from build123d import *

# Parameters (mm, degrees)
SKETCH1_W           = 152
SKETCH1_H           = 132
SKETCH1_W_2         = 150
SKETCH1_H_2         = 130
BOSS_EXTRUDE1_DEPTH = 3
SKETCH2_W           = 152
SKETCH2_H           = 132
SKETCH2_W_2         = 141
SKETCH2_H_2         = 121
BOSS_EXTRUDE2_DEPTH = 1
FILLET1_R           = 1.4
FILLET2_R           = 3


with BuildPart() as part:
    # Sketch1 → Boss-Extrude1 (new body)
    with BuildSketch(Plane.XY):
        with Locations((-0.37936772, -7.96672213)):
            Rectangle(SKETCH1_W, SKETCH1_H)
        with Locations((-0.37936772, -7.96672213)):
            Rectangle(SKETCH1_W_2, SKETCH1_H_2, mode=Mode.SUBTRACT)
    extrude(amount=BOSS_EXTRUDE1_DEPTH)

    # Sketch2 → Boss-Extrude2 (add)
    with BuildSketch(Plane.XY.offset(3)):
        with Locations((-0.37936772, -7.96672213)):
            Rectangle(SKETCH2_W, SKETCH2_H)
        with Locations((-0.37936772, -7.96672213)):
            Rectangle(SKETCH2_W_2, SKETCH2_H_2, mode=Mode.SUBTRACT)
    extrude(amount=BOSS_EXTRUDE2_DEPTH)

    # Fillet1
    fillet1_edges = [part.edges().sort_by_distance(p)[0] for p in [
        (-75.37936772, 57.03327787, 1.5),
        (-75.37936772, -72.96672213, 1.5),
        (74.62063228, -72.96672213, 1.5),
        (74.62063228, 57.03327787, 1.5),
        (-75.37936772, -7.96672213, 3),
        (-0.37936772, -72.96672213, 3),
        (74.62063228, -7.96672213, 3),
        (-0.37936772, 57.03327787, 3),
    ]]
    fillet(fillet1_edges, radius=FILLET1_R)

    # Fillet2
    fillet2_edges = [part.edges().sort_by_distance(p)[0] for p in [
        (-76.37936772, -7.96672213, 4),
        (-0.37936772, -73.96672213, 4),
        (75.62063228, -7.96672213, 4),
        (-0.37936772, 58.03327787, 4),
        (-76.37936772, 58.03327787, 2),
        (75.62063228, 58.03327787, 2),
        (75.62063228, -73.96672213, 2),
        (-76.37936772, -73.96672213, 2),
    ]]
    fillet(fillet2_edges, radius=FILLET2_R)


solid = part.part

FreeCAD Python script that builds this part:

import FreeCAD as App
import Part
import Sketcher

V = App.Vector


def edges_at(feature, points):
    """Names of the edges that pass closest to the given points."""
    edges = feature.Shape.Edges
    near = lambda p: min(range(len(edges)), key=lambda i: edges[i].distToShape(Part.Vertex(*p))[0])
    return sorted({f"Edge{near(p) + 1}" for p in points})


def add_polygon(sketch, points):
    """Adds a closed chain of lines whose ends are joined by coincident constraints."""
    first, n = sketch.GeometryCount, len(points)
    for a, b in zip(points, points[1:] + points[:1]):
        sketch.addGeometry(Part.LineSegment(App.Vector(*a, 0), App.Vector(*b, 0)), False)
    for i in range(n):
        sketch.addConstraint(Sketcher.Constraint("Coincident", first + i, 2, first + (i + 1) % n, 1))

doc = App.newDocument("Part")
params = doc.addObject("Spreadsheet::Sheet", "Params")
for row, (alias, value) in enumerate([
    ("sketch1_width", "152 mm"),
    ("sketch1_width2", "150 mm"),
    ("sketch1_height", "132 mm"),
    ("sketch1_height2", "130 mm"),
    ("pad1_length", "3 mm"),
    ("sketch2_width", "152 mm"),
    ("sketch2_width2", "141 mm"),
    ("sketch2_height", "132 mm"),
    ("sketch2_height2", "121 mm"),
    ("pad2_length", "1 mm"),
    ("fillet_radius", "1.4 mm"),
    ("fillet2_radius", "3 mm"),
], start=1):
    params.set(f"A{row}", alias)
    params.set(f"B{row}", "=" + value)
    params.setAlias(f"B{row}", alias)

body = doc.addObject("PartDesign::Body", "Body")

# Sketch on XY plane
sketch1 = doc.addObject("Sketcher::SketchObject", "Sketch")
body.addObject(sketch1)
sketch1.AttachmentSupport = (doc.XY_Plane, [""])
sketch1.MapMode = "FlatFace"
add_polygon(sketch1, [(-76, 58), (-76, -74), (76, -74), (76, 58)])  # lines 0-3
add_polygon(sketch1, [(75, -73), (-75, -73), (-75, 57), (75, 57)])  # lines 4-7
sketch1.addConstraint(Sketcher.Constraint("Vertical", 0))
sketch1.addConstraint(Sketcher.Constraint("Horizontal", 1))
sketch1.addConstraint(Sketcher.Constraint("Vertical", 2))
sketch1.addConstraint(Sketcher.Constraint("Horizontal", 3))
sketch1.addConstraint(Sketcher.Constraint("Horizontal", 4))
sketch1.addConstraint(Sketcher.Constraint("Vertical", 5))
sketch1.addConstraint(Sketcher.Constraint("Horizontal", 6))
sketch1.addConstraint(Sketcher.Constraint("Vertical", 7))
sketch1.addConstraint(Sketcher.Constraint("DistanceX", 1, 1, 1, 2, 152.0))
sketch1.addConstraint(Sketcher.Constraint("DistanceX", 4, 2, 4, 1, 150.0))
sketch1.addConstraint(Sketcher.Constraint("DistanceY", 0, 2, 0, 1, 132.0))
sketch1.addConstraint(Sketcher.Constraint("DistanceY", 5, 1, 5, 2, 130.0))
sketch1.addConstraint(Sketcher.Constraint("DistanceX", 0, 2, 4, 2, 1.0))
sketch1.addConstraint(Sketcher.Constraint("DistanceY", 0, 2, 4, 2, 1.0))
sketch1.addConstraint(Sketcher.Constraint("DistanceX", 0, 2, -1, 1, 76.379368))
sketch1.addConstraint(Sketcher.Constraint("DistanceY", 0, 2, -1, 1, 73.966722))
sketch1.setExpression("Constraints[16]", "Params.sketch1_width")
sketch1.setExpression("Constraints[17]", "Params.sketch1_width2")
sketch1.setExpression("Constraints[18]", "Params.sketch1_height")
sketch1.setExpression("Constraints[19]", "Params.sketch1_height2")
pad1 = doc.addObject("PartDesign::Pad", "Pad")
body.addObject(pad1)
pad1.Profile = sketch1
pad1.setExpression("Length", "Params.pad1_length")

# Sketch on XY plane
sketch2 = doc.addObject("Sketcher::SketchObject", "Sketch001")
body.addObject(sketch2)
sketch2.AttachmentSupport = (doc.XY_Plane, [""])
sketch2.MapMode = "FlatFace"
sketch2.AttachmentOffset = App.Placement(V(0, 0, 3), App.Rotation())
add_polygon(sketch2, [(-76, 58), (-76, -74), (76, -74), (76, 58)])  # lines 0-3
add_polygon(sketch2, [(70, -68), (-71, -68), (-71, 53), (70, 53)])  # lines 4-7
sketch2.addConstraint(Sketcher.Constraint("Vertical", 0))
sketch2.addConstraint(Sketcher.Constraint("Horizontal", 1))
sketch2.addConstraint(Sketcher.Constraint("Vertical", 2))
sketch2.addConstraint(Sketcher.Constraint("Horizontal", 3))
sketch2.addConstraint(Sketcher.Constraint("Horizontal", 4))
sketch2.addConstraint(Sketcher.Constraint("Vertical", 5))
sketch2.addConstraint(Sketcher.Constraint("Horizontal", 6))
sketch2.addConstraint(Sketcher.Constraint("Vertical", 7))
sketch2.addConstraint(Sketcher.Constraint("DistanceX", 1, 1, 1, 2, 152.0))
sketch2.addConstraint(Sketcher.Constraint("DistanceX", 4, 2, 4, 1, 141.0))
sketch2.addConstraint(Sketcher.Constraint("DistanceY", 0, 2, 0, 1, 132.0))
sketch2.addConstraint(Sketcher.Constraint("DistanceY", 5, 1, 5, 2, 121.0))
sketch2.addConstraint(Sketcher.Constraint("DistanceX", 0, 2, 4, 2, 5.5))
sketch2.addConstraint(Sketcher.Constraint("DistanceY", 0, 2, 4, 2, 5.5))
sketch2.addConstraint(Sketcher.Constraint("DistanceX", 0, 2, -1, 1, 76.379368))
sketch2.addConstraint(Sketcher.Constraint("DistanceY", 0, 2, -1, 1, 73.966722))
sketch2.setExpression("Constraints[16]", "Params.sketch2_width")
sketch2.setExpression("Constraints[17]", "Params.sketch2_width2")
sketch2.setExpression("Constraints[18]", "Params.sketch2_height")
sketch2.setExpression("Constraints[19]", "Params.sketch2_height2")
pad2 = doc.addObject("PartDesign::Pad", "Pad001")
body.addObject(pad2)
pad2.Profile = sketch2
pad2.setExpression("Length", "Params.pad2_length")
doc.recompute()

fillet = doc.addObject("PartDesign::Fillet", "Fillet")
body.addObject(fillet)
fillet.Base = (pad2, edges_at(pad2, [
    (-75.379, 57.033, 1.5),
    (-75.379, -72.967, 1.5),
    (74.621, -72.967, 1.5),
    (74.621, 57.033, 1.5),
    (-75.379, -7.967, 3),
    (-0.379, -72.967, 3),
    (74.621, -7.967, 3),
    (-0.379, 57.033, 3),
]))
fillet.setExpression("Radius", "Params.fillet_radius")
doc.recompute()

fillet2 = doc.addObject("PartDesign::Fillet", "Fillet001")
body.addObject(fillet2)
fillet2.Base = (fillet, edges_at(fillet, [
    (-76.379, -7.967, 4),
    (-0.379, -73.967, 4),
    (75.621, -7.967, 4),
    (-0.379, 58.033, 4),
    (-76.379, 58.033, 2),
    (75.621, 58.033, 2),
    (75.621, -73.967, 2),
    (-76.379, -73.967, 2),
]))
fillet2.setExpression("Radius", "Params.fillet2_radius")

doc.recompute()
